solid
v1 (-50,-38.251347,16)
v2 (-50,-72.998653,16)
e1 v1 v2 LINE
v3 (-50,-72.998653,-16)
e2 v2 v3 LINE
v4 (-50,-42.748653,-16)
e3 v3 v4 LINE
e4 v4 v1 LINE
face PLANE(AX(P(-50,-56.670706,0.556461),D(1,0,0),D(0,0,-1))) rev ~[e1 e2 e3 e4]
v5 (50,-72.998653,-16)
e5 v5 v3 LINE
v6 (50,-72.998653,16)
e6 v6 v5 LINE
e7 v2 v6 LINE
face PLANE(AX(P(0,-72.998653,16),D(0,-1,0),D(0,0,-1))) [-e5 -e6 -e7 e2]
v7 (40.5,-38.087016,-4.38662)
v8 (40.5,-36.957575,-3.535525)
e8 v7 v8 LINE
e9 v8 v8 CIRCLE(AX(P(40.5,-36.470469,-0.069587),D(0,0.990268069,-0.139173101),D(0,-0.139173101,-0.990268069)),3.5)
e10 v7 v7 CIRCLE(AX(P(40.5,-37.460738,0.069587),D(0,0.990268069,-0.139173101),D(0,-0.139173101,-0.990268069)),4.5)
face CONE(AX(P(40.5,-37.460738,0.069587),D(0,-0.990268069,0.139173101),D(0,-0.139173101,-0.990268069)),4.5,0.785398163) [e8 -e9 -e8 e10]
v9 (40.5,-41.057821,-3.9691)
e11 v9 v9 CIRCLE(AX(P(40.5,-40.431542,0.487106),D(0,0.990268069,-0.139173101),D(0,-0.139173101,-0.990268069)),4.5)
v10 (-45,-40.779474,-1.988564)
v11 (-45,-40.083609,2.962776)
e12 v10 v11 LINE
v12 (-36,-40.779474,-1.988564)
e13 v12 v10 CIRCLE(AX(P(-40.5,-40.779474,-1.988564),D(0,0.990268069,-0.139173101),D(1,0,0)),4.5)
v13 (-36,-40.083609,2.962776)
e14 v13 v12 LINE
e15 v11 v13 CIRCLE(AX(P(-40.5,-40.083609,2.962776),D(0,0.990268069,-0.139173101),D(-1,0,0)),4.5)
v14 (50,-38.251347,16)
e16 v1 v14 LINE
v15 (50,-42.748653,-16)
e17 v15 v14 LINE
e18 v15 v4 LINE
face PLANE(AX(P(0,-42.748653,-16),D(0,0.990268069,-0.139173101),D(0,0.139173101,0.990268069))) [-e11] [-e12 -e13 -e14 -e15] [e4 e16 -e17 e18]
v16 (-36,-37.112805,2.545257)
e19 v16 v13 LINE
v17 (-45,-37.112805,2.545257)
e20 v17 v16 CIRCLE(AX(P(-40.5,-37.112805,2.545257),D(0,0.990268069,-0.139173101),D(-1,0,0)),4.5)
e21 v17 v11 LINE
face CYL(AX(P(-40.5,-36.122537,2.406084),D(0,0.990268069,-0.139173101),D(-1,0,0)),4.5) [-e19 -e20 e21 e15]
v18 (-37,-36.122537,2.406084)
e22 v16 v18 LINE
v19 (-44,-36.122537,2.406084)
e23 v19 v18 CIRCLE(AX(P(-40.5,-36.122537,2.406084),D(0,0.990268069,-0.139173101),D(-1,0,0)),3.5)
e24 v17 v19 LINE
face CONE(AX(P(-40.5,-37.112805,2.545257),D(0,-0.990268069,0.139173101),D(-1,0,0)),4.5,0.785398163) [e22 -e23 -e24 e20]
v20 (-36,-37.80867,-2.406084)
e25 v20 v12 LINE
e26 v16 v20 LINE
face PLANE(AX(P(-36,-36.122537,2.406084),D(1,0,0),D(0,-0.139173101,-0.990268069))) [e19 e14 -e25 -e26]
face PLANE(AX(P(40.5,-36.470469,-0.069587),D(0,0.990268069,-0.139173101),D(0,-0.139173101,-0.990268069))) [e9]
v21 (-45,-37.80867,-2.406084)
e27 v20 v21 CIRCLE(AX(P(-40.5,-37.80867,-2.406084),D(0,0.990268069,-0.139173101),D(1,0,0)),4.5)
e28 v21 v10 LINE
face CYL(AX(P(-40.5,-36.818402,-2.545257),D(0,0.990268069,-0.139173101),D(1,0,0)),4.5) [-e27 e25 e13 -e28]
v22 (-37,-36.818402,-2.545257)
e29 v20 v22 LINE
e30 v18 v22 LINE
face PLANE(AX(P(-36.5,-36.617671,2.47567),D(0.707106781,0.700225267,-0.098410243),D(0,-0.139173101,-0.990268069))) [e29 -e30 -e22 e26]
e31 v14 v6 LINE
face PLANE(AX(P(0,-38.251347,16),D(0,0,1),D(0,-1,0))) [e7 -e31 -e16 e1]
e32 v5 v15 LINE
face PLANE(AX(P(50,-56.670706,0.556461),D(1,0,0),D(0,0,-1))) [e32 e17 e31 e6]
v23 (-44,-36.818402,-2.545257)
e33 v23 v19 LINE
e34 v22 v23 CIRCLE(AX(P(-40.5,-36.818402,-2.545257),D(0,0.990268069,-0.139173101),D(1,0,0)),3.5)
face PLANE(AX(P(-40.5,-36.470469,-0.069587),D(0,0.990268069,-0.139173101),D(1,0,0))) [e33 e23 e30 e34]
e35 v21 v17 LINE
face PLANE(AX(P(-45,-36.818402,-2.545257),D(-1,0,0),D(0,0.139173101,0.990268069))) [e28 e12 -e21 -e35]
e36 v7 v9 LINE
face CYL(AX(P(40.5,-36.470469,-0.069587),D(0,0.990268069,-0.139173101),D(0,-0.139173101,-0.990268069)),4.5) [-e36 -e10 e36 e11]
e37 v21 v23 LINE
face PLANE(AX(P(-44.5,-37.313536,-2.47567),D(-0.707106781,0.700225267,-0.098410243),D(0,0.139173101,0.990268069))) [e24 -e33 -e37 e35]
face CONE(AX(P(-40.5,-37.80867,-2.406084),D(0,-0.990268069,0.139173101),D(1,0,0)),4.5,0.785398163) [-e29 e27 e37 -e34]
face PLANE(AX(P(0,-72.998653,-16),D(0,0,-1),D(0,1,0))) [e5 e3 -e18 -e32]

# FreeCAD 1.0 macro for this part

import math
import FreeCAD as App
import Part
import Sketcher
Q = App.Units.Quantity


def edges_at(feature, points):
    """Names of the edges that pass closest to the given points."""
    edges = feature.Shape.Edges
    near = lambda p: min(range(len(edges)), key=lambda i: edges[i].distToShape(Part.Vertex(*p))[0])
    return sorted({f"Edge{near(p) + 1}" for p in points})


def add_polygon(sketch, points):
    """Adds a closed chain of lines whose ends are joined by coincident constraints."""
    first, n = sketch.GeometryCount, len(points)
    for a, b in zip(points, points[1:] + points[:1]):
        sketch.addGeometry(Part.LineSegment(App.Vector(*a, 0), App.Vector(*b, 0)), False)
    for i in range(n):
        sketch.addConstraint(Sketcher.Constraint("Coincident", first + i, 2, first + (i + 1) % n, 1))

doc = App.newDocument("Part")
body = doc.addObject("PartDesign::Body", "Body")

# Sketch on XY plane
sketch1 = body.newObject("Sketcher::SketchObject", "Sketch")
sketch1.AttachmentSupport = (doc.getObject("XY_Plane"), [""])
sketch1.MapMode = "FlatFace"
sketch1.addGeometry(Part.LineSegment(App.Vector(-17, -66.863887, 0), App.Vector(-17, 0, 0)), False)
sketch1.addGeometry(Part.ArcOfCircle(Part.Circle(App.Vector(0, 0, 0), App.Vector(0, 0, 1), 17), math.radians(0), math.radians(180)), False)
sketch1.addGeometry(Part.LineSegment(App.Vector(17, 0, 0), App.Vector(17, -66.863887, 0)), False)
sketch1.addGeometry(Part.LineSegment(App.Vector(17, -66.863887, 0), App.Vector(20.5, -66.863887, 0)), False)
sketch1.addGeometry(Part.LineSegment(App.Vector(20.5, -66.863887, 0), App.Vector(20.5, 0, 0)), False)
sketch1.addGeometry(Part.ArcOfCircle(Part.Circle(App.Vector(0, 0, 0), App.Vector(0, 0, 1), 20.5), math.radians(0), math.radians(180)), False)
sketch1.addGeometry(Part.LineSegment(App.Vector(-20.5, 0, 0), App.Vector(-20.5, -66.863887, 0)), False)
sketch1.addGeometry(Part.LineSegment(App.Vector(-20.5, -66.863887, 0), App.Vector(-17, -66.863887, 0)), False)
sketch1.addConstraint(Sketcher.Constraint("Tangent", 0, 2, 1, 2))
sketch1.addConstraint(Sketcher.Constraint("Tangent", 1, 1, 2, 1))
sketch1.addConstraint(Sketcher.Constraint("Coincident", 2, 2, 3, 1))
sketch1.addConstraint(Sketcher.Constraint("Coincident", 3, 2, 4, 1))
sketch1.addConstraint(Sketcher.Constraint("Tangent", 4, 2, 5, 1))
sketch1.addConstraint(Sketcher.Constraint("Tangent", 5, 2, 6, 1))
sketch1.addConstraint(Sketcher.Constraint("Coincident", 6, 2, 7, 1))
sketch1.addConstraint(Sketcher.Constraint("Coincident", 7, 2, 0, 1))
sketch1.addConstraint(Sketcher.Constraint("Vertical", 0))
sketch1.addConstraint(Sketcher.Constraint("Vertical", 2))
sketch1.addConstraint(Sketcher.Constraint("Horizontal", 3))
sketch1.addConstraint(Sketcher.Constraint("Vertical", 4))
sketch1.addConstraint(Sketcher.Constraint("Vertical", 6))
sketch1.addConstraint(Sketcher.Constraint("Horizontal", 7))
sketch1.addConstraint(Sketcher.Constraint("Coincident", 1, 3, -1, 1))
sketch1.addConstraint(Sketcher.Constraint("Coincident", 5, 3, -1, 1))
sketch1.addConstraint(Sketcher.Constraint("Horizontal", 3, 2, 6, 2))
sketch1.addConstraint(Sketcher.Constraint("Radius", 1, Q("17 mm")))
sketch1.addConstraint(Sketcher.Constraint("Radius", 5, Q("20.5 mm")))
sketch1.addConstraint(Sketcher.Constraint("DistanceY", 0, 1, 0, 2, Q("66.863887 mm")))
pad1 = body.newObject("PartDesign::Pad", "Pad")
pad1.Profile = sketch1
pad1.Length = 32
pad1.Midplane = True

# Sketch on YZ plane
sketch2 = body.newObject("Sketcher::SketchObject", "Sketch001")
sketch2.AttachmentSupport = (doc.getObject("YZ_Plane"), [""])
sketch2.MapMode = "FlatFace"
add_polygon(sketch2, [(-42.748653, -16), (-38.251347, 16), (-66.863887, 16), (-66.863887, -16)])  # lines 0-3
sketch2.addConstraint(Sketcher.Constraint("Horizontal", 1))
sketch2.addConstraint(Sketcher.Constraint("Vertical", 2))
sketch2.addConstraint(Sketcher.Constraint("Horizontal", 3))
sketch2.addConstraint(Sketcher.Constraint("DistanceY", 2, 2, 2, 1, Q("32 mm")))
sketch2.addConstraint(Sketcher.Constraint("Angle", 0, Q("82 deg")))
sketch2.addConstraint(Sketcher.Constraint("DistanceY", -1, 1, 0, 2, Q("16 mm")))
sketch2.addConstraint(Sketcher.Constraint("DistanceX", 1, 2, 1, 1, Q("28.61254 mm")))
sketch2.addConstraint(Sketcher.Constraint("DistanceX", 0, 2, -1, 1, Q("38.251347 mm")))
pocket1 = body.newObject("PartDesign::Pocket", "Pocket")
pocket1.Profile = sketch2
pocket1.Length = 100
pocket1.Midplane = True

# Sketch on YZ plane
sketch3 = body.newObject("Sketcher::SketchObject", "Sketch002")
sketch3.AttachmentSupport = (doc.getObject("YZ_Plane"), [""])
sketch3.MapMode = "FlatFace"
sketch3.AttachmentOffset = App.Placement(App.Vector(0, 0, -20.5), App.Rotation())
add_polygon(sketch3, [(-42.748653, -16), (-38.251347, 16), (-34.71695, 16), (-39.214257, -16)])  # lines 0-3
sketch3.addConstraint(Sketcher.Constraint("Horizontal", 1))
sketch3.addConstraint(Sketcher.Constraint("Horizontal", 3))
sketch3.addConstraint(Sketcher.Constraint("Parallel", 0, 2))
sketch3.addConstraint(Sketcher.Constraint("Angle", 0, Q("82 deg")))
sketch3.addConstraint(Sketcher.Constraint("DistanceY", -1, 1, 0, 2, Q("16 mm")))
sketch3.addConstraint(Sketcher.Constraint("DistanceY", 2, 2, -1, 1, Q("16 mm")))
sketch3.addConstraint(Sketcher.Constraint("DistanceX", 1, 1, 1, 2, Q("3.534397 mm")))
sketch3.addConstraint(Sketcher.Constraint("DistanceX", 1, 2, -1, 1, Q("34.71695 mm")))
pad2 = body.newObject("PartDesign::Pad", "Pad001")
pad2.Profile = sketch3
pad2.Length = 28.5
pad2.Reversed = True
doc.recompute()

mirrored = body.newObject("PartDesign::Mirrored", "Mirrored")
mirrored.Originals = [pad2]
mirrored.MirrorPlane = (doc.getObject("YZ_Plane"), [""])
body.Tip = mirrored

# Sketch on an angled plane
sketch4 = body.newObject("Sketcher::SketchObject", "Sketch003")
sketch4.Placement = App.Placement(App.Vector(0, -36.249611, 5.094551), App.Rotation(App.Vector(1, 0, 0), App.Vector(0, -0.139173101, -0.990268069), App.Vector(0, 0.990268069, -0.139173101), "ZXY"))
sketch4.addGeometry(Part.Circle(App.Vector(40.5, 5.144618, 0), App.Vector(0, 0, 1), 4.5), False)
sketch4.addGeometry(Part.LineSegment(App.Vector(-36, 2.644618, 0), App.Vector(-36, 7.644618, 0)), False)
sketch4.addGeometry(Part.ArcOfCircle(Part.Circle(App.Vector(-40.5, 7.644618, 0), App.Vector(0, 0, 1), 4.5), math.radians(0), math.radians(180)), False)
sketch4.addGeometry(Part.LineSegment(App.Vector(-45, 7.644618, 0), App.Vector(-45, 2.644618, 0)), False)
sketch4.addGeometry(Part.ArcOfCircle(Part.Circle(App.Vector(-40.5, 2.644618, 0), App.Vector(0, 0, 1), 4.5), math.radians(180), math.radians(360)), False)
sketch4.addConstraint(Sketcher.Constraint("Tangent", 1, 2, 2, 1))
sketch4.addConstraint(Sketcher.Constraint("Tangent", 2, 2, 3, 1))
sketch4.addConstraint(Sketcher.Constraint("Tangent", 3, 2, 4, 1))
sketch4.addConstraint(Sketcher.Constraint("Tangent", 4, 2, 1, 1))
sketch4.addConstraint(Sketcher.Constraint("Vertical", 1))
sketch4.addConstraint(Sketcher.Constraint("Vertical", 3))
sketch4.addConstraint(Sketcher.Constraint("Equal", 0, 2))
sketch4.addConstraint(Sketcher.Constraint("Diameter", 0, Q("9 mm")))
sketch4.addConstraint(Sketcher.Constraint("DistanceY", 1, 1, 1, 2, Q("5 mm")))
sketch4.addConstraint(Sketcher.Constraint("DistanceX", 1, 2, -1, 1, Q("36 mm")))
sketch4.addConstraint(Sketcher.Constraint("DistanceX", 2, 3, 0, 3, Q("81 mm")))
sketch4.addConstraint(Sketcher.Constraint("DistanceY", 0, 3, 2, 3, Q("2.5 mm")))
sketch4.addConstraint(Sketcher.Constraint("DistanceY", -1, 1, 0, 3, Q("5.144618 mm")))
pocket2 = body.newObject("PartDesign::Pocket", "Pocket001")
pocket2.Profile = sketch4
pocket2.Length = 28.5

# Sketch on YZ plane
sketch5 = body.newObject("Sketcher::SketchObject", "Sketch004")
sketch5.AttachmentSupport = (doc.getObject("YZ_Plane"), [""])
sketch5.MapMode = "FlatFace"
add_polygon(sketch5, [(-38.251347, 16), (-42.748653, -16), (32.293525, -16), (32.293525, 16)])  # lines 0-3
sketch5.addConstraint(Sketcher.Constraint("Horizontal", 1))
sketch5.addConstraint(Sketcher.Constraint("Vertical", 2))
sketch5.addConstraint(Sketcher.Constraint("Horizontal", 3))
sketch5.addConstraint(Sketcher.Constraint("DistanceY", 2, 1, 2, 2, Q("32 mm")))
sketch5.addConstraint(Sketcher.Constraint("Angle", 0, Q("-98 deg")))
sketch5.addConstraint(Sketcher.Constraint("DistanceY", 0, 2, -1, 1, Q("16 mm")))
sketch5.addConstraint(Sketcher.Constraint("DistanceX", 3, 2, 3, 1, Q("70.544871 mm")))
sketch5.addConstraint(Sketcher.Constraint("DistanceX", 0, 2, -1, 1, Q("42.748653 mm")))
pocket3 = body.newObject("PartDesign::Pocket", "Pocket002")
pocket3.Profile = sketch5
pocket3.Length = 120
pocket3.Midplane = True
body2 = doc.addObject("PartDesign::Body", "Body001")

# Sketch on YZ plane
sketch6 = body2.newObject("Sketcher::SketchObject", "Sketch005")
sketch6.AttachmentSupport = (doc.getObject("YZ_Plane001"), [""])
sketch6.MapMode = "FlatFace"
add_polygon(sketch6, [(-42.748653, -16), (-38.251347, 16), (-72.998653, 16), (-72.998653, -16)])  # lines 0-3
sketch6.addConstraint(Sketcher.Constraint("Horizontal", 1))
sketch6.addConstraint(Sketcher.Constraint("Vertical", 2))
sketch6.addConstraint(Sketcher.Constraint("Horizontal", 3))
sketch6.addConstraint(Sketcher.Constraint("DistanceY", 2, 2, 2, 1, Q("32 mm")))
sketch6.addConstraint(Sketcher.Constraint("Angle", 0, Q("82 deg")))
sketch6.addConstraint(Sketcher.Constraint("DistanceY", -1, 1, 0, 2, Q("16 mm")))
sketch6.addConstraint(Sketcher.Constraint("DistanceX", 3, 1, 3, 2, Q("30.25 mm")))
sketch6.addConstraint(Sketcher.Constraint("DistanceX", 0, 2, -1, 1, Q("38.251347 mm")))
pad3 = body2.newObject("PartDesign::Pad", "Pad002")
pad3.Profile = sketch6
pad3.Length = 100
pad3.Midplane = True

# Sketch on an angled plane
sketch7 = body2.newObject("Sketcher::SketchObject", "Sketch006")
sketch7.Placement = App.Placement(App.Vector(0, -35.754477, 5.024964), App.Rotation(App.Vector(1, 0, 0), App.Vector(0, -0.139173101, -0.990268069), App.Vector(0, 0.990268069, -0.139173101), "ZXY"))
sketch7.addGeometry(Part.Circle(App.Vector(40.5, 5.144618, 0), App.Vector(0, 0, 1), 4.5), False)
sketch7.addGeometry(Part.LineSegment(App.Vector(-36, 2.644618, 0), App.Vector(-36, 7.644618, 0)), False)
sketch7.addGeometry(Part.ArcOfCircle(Part.Circle(App.Vector(-40.5, 7.644618, 0), App.Vector(0, 0, 1), 4.5), math.radians(0), math.radians(180)), False)
sketch7.addGeometry(Part.LineSegment(App.Vector(-45, 7.644618, 0), App.Vector(-45, 2.644618, 0)), False)
sketch7.addGeometry(Part.ArcOfCircle(Part.Circle(App.Vector(-40.5, 2.644618, 0), App.Vector(0, 0, 1), 4.5), math.radians(180), math.radians(360)), False)
sketch7.addConstraint(Sketcher.Constraint("Tangent", 1, 2, 2, 1))
sketch7.addConstraint(Sketcher.Constraint("Tangent", 2, 2, 3, 1))
sketch7.addConstraint(Sketcher.Constraint("Tangent", 3, 2, 4, 1))
sketch7.addConstraint(Sketcher.Constraint("Tangent", 4, 2, 1, 1))
sketch7.addConstraint(Sketcher.Constraint("Vertical", 1))
sketch7.addConstraint(Sketcher.Constraint("Vertical", 3))
sketch7.addConstraint(Sketcher.Constraint("Equal", 0, 2))
sketch7.addConstraint(Sketcher.Constraint("Diameter", 0, Q("9 mm")))
sketch7.addConstraint(Sketcher.Constraint("DistanceY", 1, 1, 1, 2, Q("5 mm")))
sketch7.addConstraint(Sketcher.Constraint("DistanceX", 1, 2, -1, 1, Q("36 mm")))
sketch7.addConstraint(Sketcher.Constraint("DistanceX", 2, 3, 0, 3, Q("81 mm")))
sketch7.addConstraint(Sketcher.Constraint("DistanceY", 0, 3, 2, 3, Q("2.5 mm")))
sketch7.addConstraint(Sketcher.Constraint("DistanceY", -1, 1, 0, 3, Q("5.144618 mm")))
pad4 = body2.newObject("PartDesign::Pad", "Pad003")
pad4.Profile = sketch7
pad4.Length = 4
pad4.Reversed = True
doc.recompute()

chamfer = body2.newObject("PartDesign::Chamfer", "Chamfer")
chamfer.Base = (pad4, edges_at(pad4, [
    (-40.5, -35.496, 6.862),
    (-36, -36.47, -0.07),
    (-40.5, -37.445, -7.001),
    (-45, -36.47, -0.07),
    (40.5, -35.844, 4.387),
]))
chamfer.Size = 1

doc.recompute()
